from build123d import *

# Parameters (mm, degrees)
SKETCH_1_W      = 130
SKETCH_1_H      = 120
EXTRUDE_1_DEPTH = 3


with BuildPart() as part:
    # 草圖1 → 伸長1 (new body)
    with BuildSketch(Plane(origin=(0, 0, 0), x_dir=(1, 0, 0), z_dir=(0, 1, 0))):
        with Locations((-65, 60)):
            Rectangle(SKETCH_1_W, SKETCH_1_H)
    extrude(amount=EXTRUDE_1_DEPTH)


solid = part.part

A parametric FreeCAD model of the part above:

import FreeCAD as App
import Part
import Sketcher
from FreeCAD import Vector


def add_polygon(sketch, points):
    """Adds a closed chain of lines whose ends are joined by coincident constraints."""
    first, n = sketch.GeometryCount, len(points)
    for a, b in zip(points, points[1:] + points[:1]):
        sketch.addGeometry(Part.LineSegment(App.Vector(*a, 0), App.Vector(*b, 0)), False)
    for i in range(n):
        sketch.addConstraint(Sketcher.Constraint("Coincident", first + i, 2, first + (i + 1) % n, 1))

doc = App.newDocument("Part")
body = doc.addObject("PartDesign::Body", "Body")

# Sketch on XZ plane
sketch1 = body.newObject("Sketcher::SketchObject", "Sketch")
sketch1.AttachmentSupport = (doc.getObject("XZ_Plane"), [""])
sketch1.MapMode = "FlatFace"
add_polygon(sketch1, [(-130, -120), (-130, 0), (0, 0), (0, -120)])  # lines 0-3
sketch1.addConstraint([
    Sketcher.Constraint("Vertical", 0),
    Sketcher.Constraint("Horizontal", 1),
    Sketcher.Constraint("Vertical", 2),
    Sketcher.Constraint("Horizontal", 3),
    Sketcher.Constraint("Coincident", 1, 2, -1, 1),
    Sketcher.Constraint("DistanceX", 1, 1, 1, 2, 130.0),
    Sketcher.Constraint("DistanceY", 0, 1, 0, 2, 120.0),
])
pad1 = body.newObject("PartDesign::Pad", "Pad")
pad1.Profile = sketch1
pad1.Length = 3
pad1.Reversed = True

doc.recompute()
